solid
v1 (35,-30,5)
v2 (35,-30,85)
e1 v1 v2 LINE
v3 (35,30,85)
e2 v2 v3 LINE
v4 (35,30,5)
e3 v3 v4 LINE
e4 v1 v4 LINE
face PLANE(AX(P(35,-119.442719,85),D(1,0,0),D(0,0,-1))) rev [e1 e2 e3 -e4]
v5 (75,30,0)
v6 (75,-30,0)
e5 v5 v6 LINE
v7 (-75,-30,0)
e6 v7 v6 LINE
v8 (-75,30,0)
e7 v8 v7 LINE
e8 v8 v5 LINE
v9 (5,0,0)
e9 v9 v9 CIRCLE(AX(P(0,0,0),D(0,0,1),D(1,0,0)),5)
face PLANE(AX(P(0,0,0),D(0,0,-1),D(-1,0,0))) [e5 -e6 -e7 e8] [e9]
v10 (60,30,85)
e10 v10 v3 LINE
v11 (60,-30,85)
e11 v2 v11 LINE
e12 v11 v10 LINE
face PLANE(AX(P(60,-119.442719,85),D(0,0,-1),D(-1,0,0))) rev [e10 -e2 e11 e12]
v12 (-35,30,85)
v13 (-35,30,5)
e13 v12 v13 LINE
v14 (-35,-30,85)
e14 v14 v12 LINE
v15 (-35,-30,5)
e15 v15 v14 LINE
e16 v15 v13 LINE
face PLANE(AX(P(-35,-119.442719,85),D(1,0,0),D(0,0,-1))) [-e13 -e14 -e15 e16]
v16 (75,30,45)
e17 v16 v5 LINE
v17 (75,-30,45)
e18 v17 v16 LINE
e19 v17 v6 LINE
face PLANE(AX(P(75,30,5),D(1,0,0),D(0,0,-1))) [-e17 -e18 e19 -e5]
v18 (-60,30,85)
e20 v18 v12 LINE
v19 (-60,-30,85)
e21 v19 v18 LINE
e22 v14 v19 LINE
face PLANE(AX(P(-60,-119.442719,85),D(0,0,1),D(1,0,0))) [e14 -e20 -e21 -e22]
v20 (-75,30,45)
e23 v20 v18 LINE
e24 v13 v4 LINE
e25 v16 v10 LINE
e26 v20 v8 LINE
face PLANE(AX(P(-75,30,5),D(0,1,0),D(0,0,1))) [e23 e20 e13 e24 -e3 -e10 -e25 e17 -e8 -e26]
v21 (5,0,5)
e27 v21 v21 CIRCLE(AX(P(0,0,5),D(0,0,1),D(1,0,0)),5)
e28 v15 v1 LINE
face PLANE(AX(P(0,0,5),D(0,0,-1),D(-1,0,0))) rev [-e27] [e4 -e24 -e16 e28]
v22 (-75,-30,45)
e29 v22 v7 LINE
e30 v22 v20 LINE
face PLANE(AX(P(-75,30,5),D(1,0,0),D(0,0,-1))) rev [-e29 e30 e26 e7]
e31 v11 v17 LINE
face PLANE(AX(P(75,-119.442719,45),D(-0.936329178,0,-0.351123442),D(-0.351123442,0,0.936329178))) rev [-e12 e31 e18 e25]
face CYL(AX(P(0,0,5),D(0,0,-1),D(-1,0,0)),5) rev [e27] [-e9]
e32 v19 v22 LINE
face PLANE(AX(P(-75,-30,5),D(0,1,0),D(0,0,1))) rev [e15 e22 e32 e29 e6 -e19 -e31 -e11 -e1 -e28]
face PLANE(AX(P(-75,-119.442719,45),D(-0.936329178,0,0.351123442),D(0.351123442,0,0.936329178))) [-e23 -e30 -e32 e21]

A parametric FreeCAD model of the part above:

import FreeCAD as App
import Part
import Sketcher
Q = App.Units.Quantity

doc = App.newDocument("Part")
params = doc.addObject("Spreadsheet::Sheet", "Params")
for row, (alias, value) in enumerate([
    ("sketch1_diameter", "10 mm"),
    ("sketch1_width", "150 mm"),
    ("sketch1_height", "60 mm"),
    ("pad1_length", "5 mm"),
    ("sketch2_width", "40 mm"),
    ("sketch2_width2", "25 mm"),
    ("sketch2_height", "80 mm"),
    ("pad2_length", "60 mm"),
], start=1):
    params.set(f"A{row}", alias)
    params.set(f"B{row}", "=" + value)
    params.setAlias(f"B{row}", alias)

body = doc.addObject("PartDesign::Body", "Body")

# Sketch on XY plane
sketch1 = body.newObject("Sketcher::SketchObject", "Sketch")
sketch1.AttachmentSupport = (doc.getObject("XY_Plane"), [""])
sketch1.MapMode = "FlatFace"
sketch1.addGeometry([
    Part.LineSegment(App.Vector(-75, 30, 0), App.Vector(-75, -30, 0)),  # 0
    Part.LineSegment(App.Vector(-75, -30, 0), App.Vector(75, -30, 0)),  # 1
    Part.LineSegment(App.Vector(75, -30, 0), App.Vector(75, 30, 0)),  # 2
    Part.LineSegment(App.Vector(75, 30, 0), App.Vector(-75, 30, 0)),  # 3
    Part.Circle(App.Vector(0, 0, 0), App.Vector(0, 0, 1), 5),  # 4
], False)
sketch1.addConstraint([
    Sketcher.Constraint("Coincident", 0, 2, 1, 1),
    Sketcher.Constraint("Coincident", 1, 2, 2, 1),
    Sketcher.Constraint("Coincident", 2, 2, 3, 1),
    Sketcher.Constraint("Coincident", 3, 2, 0, 1),
    Sketcher.Constraint("Vertical", 0),
    Sketcher.Constraint("Horizontal", 1),
    Sketcher.Constraint("Vertical", 2),
    Sketcher.Constraint("Horizontal", 3),
    Sketcher.Constraint("Coincident", 4, 3, -1, 1),
    Sketcher.Constraint("Symmetric", 0, 2, 2, 2, -1, 1),
    Sketcher.Constraint("Diameter", 4, Q("10 mm")),
    Sketcher.Constraint("DistanceX", 1, 1, 1, 2, Q("150 mm")),
    Sketcher.Constraint("DistanceY", 0, 2, 0, 1, Q("60 mm")),
])
sketch1.setExpression("Constraints[10]", "Params.sketch1_diameter")
sketch1.setExpression("Constraints[11]", "Params.sketch1_width")
sketch1.setExpression("Constraints[12]", "Params.sketch1_height")
pad1 = body.newObject("PartDesign::Pad", "Pad")
pad1.Profile = sketch1
pad1.setExpression("Length", "Params.pad1_length")

# Sketch on XZ plane
sketch2 = body.newObject("Sketcher::SketchObject", "Sketch001")
sketch2.AttachmentSupport = (doc.getObject("XZ_Plane"), [""])
sketch2.MapMode = "FlatFace"
sketch2.AttachmentOffset = App.Placement(App.Vector(0, 0, -30), App.Rotation())
sketch2.addGeometry([
    Part.LineSegment(App.Vector(-35, 85, 0), App.Vector(-35, 5, 0)),  # 0
    Part.LineSegment(App.Vector(-35, 5, 0), App.Vector(-75, 5, 0)),  # 1
    Part.LineSegment(App.Vector(-75, 5, 0), App.Vector(-75, 45, 0)),  # 2
    Part.LineSegment(App.Vector(-75, 45, 0), App.Vector(-60, 85, 0)),  # 3
    Part.LineSegment(App.Vector(-60, 85, 0), App.Vector(-35, 85, 0)),  # 4
], False)
sketch2.addConstraint([
    Sketcher.Constraint("Coincident", 0, 2, 1, 1),
    Sketcher.Constraint("Coincident", 1, 2, 2, 1),
    Sketcher.Constraint("Coincident", 2, 2, 3, 1),
    Sketcher.Constraint("Coincident", 3, 2, 4, 1),
    Sketcher.Constraint("Coincident", 4, 2, 0, 1),
    Sketcher.Constraint("Vertical", 0),
    Sketcher.Constraint("Horizontal", 1),
    Sketcher.Constraint("Vertical", 2),
    Sketcher.Constraint("Horizontal", 4),
    Sketcher.Constraint("Equal", 1, 2),
    Sketcher.Constraint("DistanceX", 1, 2, 1, 1, Q("40 mm")),
    Sketcher.Constraint("DistanceX", 4, 1, 4, 2, Q("25 mm")),
    Sketcher.Constraint("DistanceY", 0, 2, 0, 1, Q("80 mm")),
    Sketcher.Constraint("DistanceX", 0, 2, -1, 1, Q("35 mm")),
    Sketcher.Constraint("DistanceY", -1, 1, 0, 2, Q("5 mm")),
])
sketch2.setExpression("Constraints[10]", "Params.sketch2_width")
sketch2.setExpression("Constraints[11]", "Params.sketch2_width2")
sketch2.setExpression("Constraints[12]", "Params.sketch2_height")
pad2 = body.newObject("PartDesign::Pad", "Pad001")
pad2.Profile = sketch2
pad2.setExpression("Length", "Params.pad2_length")
doc.recompute()

mirrored = body.newObject("PartDesign::Mirrored", "Mirrored")
mirrored.Originals = [pad2]
mirrored.MirrorPlane = (doc.getObject("YZ_Plane"), [""])
body.Tip = mirrored

doc.recompute()
